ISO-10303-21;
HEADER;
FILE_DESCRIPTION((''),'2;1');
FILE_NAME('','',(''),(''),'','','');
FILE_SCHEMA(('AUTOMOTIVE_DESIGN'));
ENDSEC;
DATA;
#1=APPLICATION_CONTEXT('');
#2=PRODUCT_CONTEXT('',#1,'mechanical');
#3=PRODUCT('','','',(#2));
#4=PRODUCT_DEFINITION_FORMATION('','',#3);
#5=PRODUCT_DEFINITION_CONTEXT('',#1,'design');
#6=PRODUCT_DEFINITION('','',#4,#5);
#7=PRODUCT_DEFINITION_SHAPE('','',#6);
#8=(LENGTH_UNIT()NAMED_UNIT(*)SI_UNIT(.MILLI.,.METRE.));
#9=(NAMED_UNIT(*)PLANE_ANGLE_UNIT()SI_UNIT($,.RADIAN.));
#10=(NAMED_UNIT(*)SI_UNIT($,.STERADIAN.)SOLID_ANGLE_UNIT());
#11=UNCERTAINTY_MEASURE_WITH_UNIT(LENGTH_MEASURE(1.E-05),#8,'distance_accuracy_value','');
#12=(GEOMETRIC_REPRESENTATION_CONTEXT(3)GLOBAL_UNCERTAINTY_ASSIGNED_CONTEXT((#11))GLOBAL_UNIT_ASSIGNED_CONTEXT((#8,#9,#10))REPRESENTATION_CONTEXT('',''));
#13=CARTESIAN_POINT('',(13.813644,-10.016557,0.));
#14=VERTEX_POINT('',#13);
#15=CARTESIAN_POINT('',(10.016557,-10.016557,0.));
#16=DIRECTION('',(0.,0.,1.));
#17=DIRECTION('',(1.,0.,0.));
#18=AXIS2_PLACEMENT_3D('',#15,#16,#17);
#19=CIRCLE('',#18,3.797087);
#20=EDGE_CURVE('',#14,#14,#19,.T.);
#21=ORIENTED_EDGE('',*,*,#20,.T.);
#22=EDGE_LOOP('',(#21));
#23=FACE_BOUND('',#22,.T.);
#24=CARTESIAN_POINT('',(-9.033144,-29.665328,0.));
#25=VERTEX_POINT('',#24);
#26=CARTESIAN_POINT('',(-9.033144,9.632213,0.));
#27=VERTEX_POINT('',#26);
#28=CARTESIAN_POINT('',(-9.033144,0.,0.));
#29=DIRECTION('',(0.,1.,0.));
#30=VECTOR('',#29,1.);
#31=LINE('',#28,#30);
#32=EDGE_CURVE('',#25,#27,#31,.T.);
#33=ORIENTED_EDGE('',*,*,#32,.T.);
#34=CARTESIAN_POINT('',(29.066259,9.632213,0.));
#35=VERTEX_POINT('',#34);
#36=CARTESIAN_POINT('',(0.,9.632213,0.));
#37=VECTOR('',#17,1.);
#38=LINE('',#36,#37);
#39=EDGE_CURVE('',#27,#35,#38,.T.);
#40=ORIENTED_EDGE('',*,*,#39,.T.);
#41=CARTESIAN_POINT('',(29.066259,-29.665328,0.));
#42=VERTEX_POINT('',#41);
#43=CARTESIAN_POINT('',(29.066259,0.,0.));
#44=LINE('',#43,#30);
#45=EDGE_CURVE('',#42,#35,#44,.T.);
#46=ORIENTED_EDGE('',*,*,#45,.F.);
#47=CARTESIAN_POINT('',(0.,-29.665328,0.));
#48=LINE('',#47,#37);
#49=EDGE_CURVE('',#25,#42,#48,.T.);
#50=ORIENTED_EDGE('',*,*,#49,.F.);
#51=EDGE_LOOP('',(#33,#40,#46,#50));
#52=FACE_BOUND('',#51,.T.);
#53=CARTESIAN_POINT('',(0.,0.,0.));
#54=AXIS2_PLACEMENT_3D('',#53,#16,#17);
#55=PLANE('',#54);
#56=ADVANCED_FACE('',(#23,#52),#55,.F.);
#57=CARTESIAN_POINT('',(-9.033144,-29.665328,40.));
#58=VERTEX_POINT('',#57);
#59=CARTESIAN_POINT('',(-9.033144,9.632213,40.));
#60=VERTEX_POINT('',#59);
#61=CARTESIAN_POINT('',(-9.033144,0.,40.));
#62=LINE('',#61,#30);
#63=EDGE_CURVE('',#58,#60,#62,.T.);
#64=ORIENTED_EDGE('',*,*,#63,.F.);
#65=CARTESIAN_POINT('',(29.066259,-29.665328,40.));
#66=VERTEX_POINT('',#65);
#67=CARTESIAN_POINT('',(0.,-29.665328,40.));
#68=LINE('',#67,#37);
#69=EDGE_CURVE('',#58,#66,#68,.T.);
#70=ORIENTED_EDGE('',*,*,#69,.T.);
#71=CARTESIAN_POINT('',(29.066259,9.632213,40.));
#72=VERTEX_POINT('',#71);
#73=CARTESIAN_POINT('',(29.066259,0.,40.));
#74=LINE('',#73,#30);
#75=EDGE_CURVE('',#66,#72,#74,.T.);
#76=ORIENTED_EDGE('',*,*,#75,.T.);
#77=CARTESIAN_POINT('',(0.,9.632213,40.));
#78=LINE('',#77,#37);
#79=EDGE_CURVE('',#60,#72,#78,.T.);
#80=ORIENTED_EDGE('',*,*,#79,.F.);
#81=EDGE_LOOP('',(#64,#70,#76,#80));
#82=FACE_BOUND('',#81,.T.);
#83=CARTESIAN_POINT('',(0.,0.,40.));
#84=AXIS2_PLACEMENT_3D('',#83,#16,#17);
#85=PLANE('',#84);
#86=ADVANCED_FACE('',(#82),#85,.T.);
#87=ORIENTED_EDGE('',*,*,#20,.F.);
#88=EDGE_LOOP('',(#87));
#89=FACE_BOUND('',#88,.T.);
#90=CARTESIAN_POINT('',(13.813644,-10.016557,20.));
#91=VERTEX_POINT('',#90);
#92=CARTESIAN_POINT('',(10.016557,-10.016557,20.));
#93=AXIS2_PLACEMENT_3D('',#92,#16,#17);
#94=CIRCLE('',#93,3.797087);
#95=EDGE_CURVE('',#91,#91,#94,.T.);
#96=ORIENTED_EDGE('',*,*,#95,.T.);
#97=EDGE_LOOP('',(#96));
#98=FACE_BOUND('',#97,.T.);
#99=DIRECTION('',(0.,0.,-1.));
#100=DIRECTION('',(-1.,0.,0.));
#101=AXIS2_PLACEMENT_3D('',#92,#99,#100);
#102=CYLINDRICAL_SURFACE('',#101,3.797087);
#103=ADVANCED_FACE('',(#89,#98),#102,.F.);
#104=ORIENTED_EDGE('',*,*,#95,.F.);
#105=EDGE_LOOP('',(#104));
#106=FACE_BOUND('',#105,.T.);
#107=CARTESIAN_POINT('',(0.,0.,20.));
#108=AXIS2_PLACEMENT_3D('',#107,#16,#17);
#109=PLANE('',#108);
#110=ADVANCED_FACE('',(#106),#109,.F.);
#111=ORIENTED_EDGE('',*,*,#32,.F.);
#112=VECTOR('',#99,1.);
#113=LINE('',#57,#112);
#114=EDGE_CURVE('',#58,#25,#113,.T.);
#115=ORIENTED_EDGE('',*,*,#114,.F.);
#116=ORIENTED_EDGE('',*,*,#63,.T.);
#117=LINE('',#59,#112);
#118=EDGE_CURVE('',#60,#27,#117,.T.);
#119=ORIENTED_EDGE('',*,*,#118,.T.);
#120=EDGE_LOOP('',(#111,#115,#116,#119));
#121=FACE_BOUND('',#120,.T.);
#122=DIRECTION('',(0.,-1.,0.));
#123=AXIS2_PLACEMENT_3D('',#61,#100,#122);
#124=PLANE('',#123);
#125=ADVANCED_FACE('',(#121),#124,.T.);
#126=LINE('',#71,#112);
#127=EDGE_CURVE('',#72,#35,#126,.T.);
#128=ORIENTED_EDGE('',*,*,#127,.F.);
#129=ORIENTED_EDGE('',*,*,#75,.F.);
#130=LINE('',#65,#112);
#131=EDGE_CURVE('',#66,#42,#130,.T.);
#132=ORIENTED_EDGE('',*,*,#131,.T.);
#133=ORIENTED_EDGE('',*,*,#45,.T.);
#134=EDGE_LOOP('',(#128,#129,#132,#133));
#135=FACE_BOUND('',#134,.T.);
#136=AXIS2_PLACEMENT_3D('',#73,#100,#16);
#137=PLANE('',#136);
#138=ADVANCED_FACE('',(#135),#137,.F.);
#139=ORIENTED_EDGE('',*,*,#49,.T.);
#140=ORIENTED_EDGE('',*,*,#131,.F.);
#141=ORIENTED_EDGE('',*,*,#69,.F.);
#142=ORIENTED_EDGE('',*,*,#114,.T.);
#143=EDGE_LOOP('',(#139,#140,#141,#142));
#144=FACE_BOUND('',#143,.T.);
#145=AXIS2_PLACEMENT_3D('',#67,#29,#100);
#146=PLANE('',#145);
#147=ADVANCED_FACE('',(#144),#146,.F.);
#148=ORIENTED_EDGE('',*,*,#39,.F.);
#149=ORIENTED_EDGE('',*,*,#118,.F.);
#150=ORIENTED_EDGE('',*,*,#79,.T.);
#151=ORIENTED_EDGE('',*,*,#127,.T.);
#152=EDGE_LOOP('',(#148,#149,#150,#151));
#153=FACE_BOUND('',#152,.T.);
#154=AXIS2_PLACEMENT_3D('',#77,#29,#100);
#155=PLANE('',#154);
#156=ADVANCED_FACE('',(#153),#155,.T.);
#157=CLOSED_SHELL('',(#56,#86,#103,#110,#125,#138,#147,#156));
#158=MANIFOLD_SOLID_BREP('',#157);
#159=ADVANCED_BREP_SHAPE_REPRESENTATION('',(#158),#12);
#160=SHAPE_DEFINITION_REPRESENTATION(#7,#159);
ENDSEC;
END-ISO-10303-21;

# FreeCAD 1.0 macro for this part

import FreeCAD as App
import Part
import Sketcher


def add_polygon(sketch, points):
    """Adds a closed chain of lines whose ends are joined by coincident constraints."""
    first, n = sketch.GeometryCount, len(points)
    for a, b in zip(points, points[1:] + points[:1]):
        sketch.addGeometry(Part.LineSegment(App.Vector(*a, 0), App.Vector(*b, 0)), False)
    for i in range(n):
        sketch.addConstraint(Sketcher.Constraint("Coincident", first + i, 2, first + (i + 1) % n, 1))

doc = App.newDocument("Part")
body = doc.addObject("PartDesign::Body", "Body")

# Sketch on XY plane
sketch1 = body.newObject("Sketcher::SketchObject", "Sketch")
sketch1.AttachmentSupport = (doc.getObject("XY_Plane"), [""])
sketch1.MapMode = "FlatFace"
add_polygon(sketch1, [(-9.033144, 9.632213), (-9.033144, -29.665328), (29.066259, -29.665328), (29.066259, 9.632213)])  # lines 0-3
sketch1.addConstraint([
    Sketcher.Constraint("Vertical", 0),
    Sketcher.Constraint("Horizontal", 1),
    Sketcher.Constraint("Vertical", 2),
    Sketcher.Constraint("Horizontal", 3),
    Sketcher.Constraint("DistanceY", 0, 2, 0, 1, 39.297541),
    Sketcher.Constraint("DistanceX", 1, 1, 1, 2, 38.099402),
    Sketcher.Constraint("DistanceX", -1, 1, 1, 2, 29.066259),
    Sketcher.Constraint("DistanceY", 0, 2, -1, 1, 29.665328),
])
pad1 = body.newObject("PartDesign::Pad", "Pad")
pad1.Profile = sketch1
pad1.Length = 40

# Sketch on XY plane
sketch2 = body.newObject("Sketcher::SketchObject", "Sketch001")
sketch2.AttachmentSupport = (doc.getObject("XY_Plane"), [""])
sketch2.MapMode = "FlatFace"
sketch2.addGeometry(Part.Circle(App.Vector(10.016557, -10.016557, 0), App.Vector(0, 0, 1), 3.797087), False)
sketch2.addConstraint([
    Sketcher.Constraint("Diameter", 0, 7.594173),
    Sketcher.Constraint("DistanceX", -1, 1, 0, 3, 10.016557),
    Sketcher.Constraint("DistanceY", 0, 3, -1, 1, 10.016557),
])
pocket1 = body.newObject("PartDesign::Pocket", "Pocket")
pocket1.Profile = sketch2
pocket1.Length = 20
pocket1.Reversed = True

doc.recompute()
